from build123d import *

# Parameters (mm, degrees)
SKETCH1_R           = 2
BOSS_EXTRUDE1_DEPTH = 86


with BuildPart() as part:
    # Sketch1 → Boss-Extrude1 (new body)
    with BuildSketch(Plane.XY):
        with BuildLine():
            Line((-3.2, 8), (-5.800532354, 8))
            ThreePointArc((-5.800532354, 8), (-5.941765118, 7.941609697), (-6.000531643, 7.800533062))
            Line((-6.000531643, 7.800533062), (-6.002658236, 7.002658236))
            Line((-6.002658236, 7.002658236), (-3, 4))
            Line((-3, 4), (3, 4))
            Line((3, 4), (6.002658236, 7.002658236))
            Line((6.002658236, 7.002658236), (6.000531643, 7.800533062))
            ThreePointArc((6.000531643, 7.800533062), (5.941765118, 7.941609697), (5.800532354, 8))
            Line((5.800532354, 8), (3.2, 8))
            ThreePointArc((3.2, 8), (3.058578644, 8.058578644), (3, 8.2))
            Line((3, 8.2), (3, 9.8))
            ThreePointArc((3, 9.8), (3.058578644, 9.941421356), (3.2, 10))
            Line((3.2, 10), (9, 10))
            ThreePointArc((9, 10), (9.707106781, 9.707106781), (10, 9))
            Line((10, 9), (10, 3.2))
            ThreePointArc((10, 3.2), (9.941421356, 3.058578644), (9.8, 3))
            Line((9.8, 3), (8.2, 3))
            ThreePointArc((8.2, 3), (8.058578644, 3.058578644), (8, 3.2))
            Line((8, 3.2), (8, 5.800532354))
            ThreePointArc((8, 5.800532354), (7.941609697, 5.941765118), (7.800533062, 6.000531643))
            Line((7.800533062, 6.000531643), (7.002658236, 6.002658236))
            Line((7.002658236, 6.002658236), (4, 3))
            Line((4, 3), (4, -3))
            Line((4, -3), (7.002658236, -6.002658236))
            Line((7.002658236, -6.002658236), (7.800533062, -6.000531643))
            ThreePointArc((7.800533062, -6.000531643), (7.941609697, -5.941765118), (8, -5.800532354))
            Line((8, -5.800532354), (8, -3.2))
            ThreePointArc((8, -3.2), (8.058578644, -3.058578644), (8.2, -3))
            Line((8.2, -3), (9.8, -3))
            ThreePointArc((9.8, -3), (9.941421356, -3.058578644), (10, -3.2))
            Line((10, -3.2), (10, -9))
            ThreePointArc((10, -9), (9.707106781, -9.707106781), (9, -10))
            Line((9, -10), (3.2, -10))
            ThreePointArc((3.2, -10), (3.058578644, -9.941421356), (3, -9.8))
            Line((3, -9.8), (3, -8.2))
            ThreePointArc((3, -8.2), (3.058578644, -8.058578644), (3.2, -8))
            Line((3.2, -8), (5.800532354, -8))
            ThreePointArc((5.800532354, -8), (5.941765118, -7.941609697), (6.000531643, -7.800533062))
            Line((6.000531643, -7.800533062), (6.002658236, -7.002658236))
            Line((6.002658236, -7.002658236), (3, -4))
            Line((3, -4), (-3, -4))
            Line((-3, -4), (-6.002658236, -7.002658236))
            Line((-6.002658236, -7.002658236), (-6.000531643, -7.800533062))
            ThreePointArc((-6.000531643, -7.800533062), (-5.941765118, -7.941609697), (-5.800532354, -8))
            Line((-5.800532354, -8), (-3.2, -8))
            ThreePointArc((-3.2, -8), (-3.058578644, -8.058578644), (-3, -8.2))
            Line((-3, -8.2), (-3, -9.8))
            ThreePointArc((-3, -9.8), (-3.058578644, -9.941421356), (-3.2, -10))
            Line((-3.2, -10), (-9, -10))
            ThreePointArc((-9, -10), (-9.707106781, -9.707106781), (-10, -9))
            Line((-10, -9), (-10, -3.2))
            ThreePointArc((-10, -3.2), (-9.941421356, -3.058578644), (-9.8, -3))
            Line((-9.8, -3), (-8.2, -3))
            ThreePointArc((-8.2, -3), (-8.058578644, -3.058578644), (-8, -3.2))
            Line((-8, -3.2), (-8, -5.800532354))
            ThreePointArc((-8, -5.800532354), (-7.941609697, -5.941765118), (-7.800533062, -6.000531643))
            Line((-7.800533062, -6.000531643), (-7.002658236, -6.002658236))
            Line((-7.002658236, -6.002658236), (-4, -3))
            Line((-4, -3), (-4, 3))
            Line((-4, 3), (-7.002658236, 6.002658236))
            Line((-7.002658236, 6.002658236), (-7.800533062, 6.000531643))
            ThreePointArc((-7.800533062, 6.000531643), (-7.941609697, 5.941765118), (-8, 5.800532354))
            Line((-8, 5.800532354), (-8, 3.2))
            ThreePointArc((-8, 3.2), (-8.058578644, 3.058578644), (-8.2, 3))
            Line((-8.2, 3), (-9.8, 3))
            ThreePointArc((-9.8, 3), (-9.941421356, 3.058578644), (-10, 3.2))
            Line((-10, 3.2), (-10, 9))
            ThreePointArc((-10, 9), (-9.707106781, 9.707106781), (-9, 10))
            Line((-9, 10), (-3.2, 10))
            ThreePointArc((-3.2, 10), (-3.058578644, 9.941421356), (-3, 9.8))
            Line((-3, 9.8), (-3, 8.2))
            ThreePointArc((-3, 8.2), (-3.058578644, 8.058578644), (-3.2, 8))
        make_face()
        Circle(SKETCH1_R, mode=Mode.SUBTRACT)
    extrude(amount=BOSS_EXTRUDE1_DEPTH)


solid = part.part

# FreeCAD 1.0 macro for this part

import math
import FreeCAD as App
import Part
import Sketcher

V = App.Vector
Q = App.Units.Quantity

doc = App.newDocument("Part")
body = doc.addObject("PartDesign::Body", "Body")

sketch1 = body.newObject("Sketcher::SketchObject", "Sketch")
sketch1.AttachmentSupport = (doc.getObject("XY_Plane"), [""])
sketch1.MapMode = "FlatFace"
sketch1.addGeometry(Part.LineSegment(V(-5.8, 8, 0), V(-3.2, 8, 0)), False)
sketch1.addGeometry(Part.ArcOfCircle(Part.Circle(V(-3.2, 8.2, 0), V(0, 0, 1), 0.2), math.radians(-90), math.radians(0)), False)
sketch1.addGeometry(Part.LineSegment(V(-3, 8.2, 0), V(-3, 9.8, 0)), False)
sketch1.addGeometry(Part.ArcOfCircle(Part.Circle(V(-3.2, 9.8, 0), V(0, 0, 1), 0.2), math.radians(0), math.radians(90)), False)
sketch1.addGeometry(Part.LineSegment(V(-3.2, 10, 0), V(-9, 10, 0)), False)
sketch1.addGeometry(Part.ArcOfCircle(Part.Circle(V(-9, 9, 0), V(0, 0, 1), 1), math.radians(90), math.radians(180)), False)
sketch1.addGeometry(Part.LineSegment(V(-10, 9, 0), V(-10, 3.2, 0)), False)
sketch1.addGeometry(Part.ArcOfCircle(Part.Circle(V(-9.8, 3.2, 0), V(0, 0, 1), 0.2), math.radians(-180), math.radians(-90)), False)
sketch1.addGeometry(Part.LineSegment(V(-9.8, 3, 0), V(-8.2, 3, 0)), False)
sketch1.addGeometry(Part.ArcOfCircle(Part.Circle(V(-8.2, 3.2, 0), V(0, 0, 1), 0.2), math.radians(-90), math.radians(0)), False)
sketch1.addGeometry(Part.LineSegment(V(-8, 3.2, 0), V(-8, 5.8, 0)), False)
sketch1.addGeometry(Part.ArcOfCircle(Part.Circle(V(-7.8, 5.8, 0), V(0, 0, 1), 0.2), math.radians(90), math.radians(180)), False)
sketch1.addGeometry(Part.LineSegment(V(-7.8, 6, 0), V(-7, 6, 0)), False)
sketch1.addGeometry(Part.LineSegment(V(-7, 6, 0), V(-4, 3, 0)), False)
sketch1.addGeometry(Part.LineSegment(V(-4, 3, 0), V(-4, -3, 0)), False)
sketch1.addGeometry(Part.LineSegment(V(-4, -3, 0), V(-7, -6, 0)), False)
sketch1.addGeometry(Part.LineSegment(V(-7, -6, 0), V(-7.8, -6, 0)), False)
sketch1.addGeometry(Part.ArcOfCircle(Part.Circle(V(-7.8, -5.8, 0), V(0, 0, 1), 0.2), math.radians(180), math.radians(270)), False)
sketch1.addGeometry(Part.LineSegment(V(-8, -5.8, 0), V(-8, -3.2, 0)), False)
sketch1.addGeometry(Part.ArcOfCircle(Part.Circle(V(-8.2, -3.2, 0), V(0, 0, 1), 0.2), math.radians(0), math.radians(90)), False)
sketch1.addGeometry(Part.LineSegment(V(-8.2, -3, 0), V(-9.8, -3, 0)), False)
sketch1.addGeometry(Part.ArcOfCircle(Part.Circle(V(-9.8, -3.2, 0), V(0, 0, 1), 0.2), math.radians(90), math.radians(180)), False)
sketch1.addGeometry(Part.LineSegment(V(-10, -3.2, 0), V(-10, -9, 0)), False)
sketch1.addGeometry(Part.ArcOfCircle(Part.Circle(V(-9, -9, 0), V(0, 0, 1), 1), math.radians(-180), math.radians(-90)), False)
sketch1.addGeometry(Part.LineSegment(V(-9, -10, 0), V(-3.2, -10, 0)), False)
sketch1.addGeometry(Part.ArcOfCircle(Part.Circle(V(-3.2, -9.8, 0), V(0, 0, 1), 0.2), math.radians(-90), math.radians(0)), False)
sketch1.addGeometry(Part.LineSegment(V(-3, -9.8, 0), V(-3, -8.2, 0)), False)
sketch1.addGeometry(Part.ArcOfCircle(Part.Circle(V(-3.2, -8.2, 0), V(0, 0, 1), 0.2), math.radians(0), math.radians(90)), False)
sketch1.addGeometry(Part.LineSegment(V(-3.2, -8, 0), V(-5.8, -8, 0)), False)
sketch1.addGeometry(Part.ArcOfCircle(Part.Circle(V(-5.8, -7.8, 0), V(0, 0, 1), 0.2), math.radians(-180), math.radians(-90)), False)
sketch1.addGeometry(Part.LineSegment(V(-6, -7.8, 0), V(-6, -7, 0)), False)
sketch1.addGeometry(Part.LineSegment(V(-6, -7, 0), V(-3, -4, 0)), False)
sketch1.addGeometry(Part.LineSegment(V(-3, -4, 0), V(3, -4, 0)), False)
sketch1.addGeometry(Part.LineSegment(V(3, -4, 0), V(6, -7, 0)), False)
sketch1.addGeometry(Part.LineSegment(V(6, -7, 0), V(6, -7.8, 0)), False)
sketch1.addGeometry(Part.ArcOfCircle(Part.Circle(V(5.8, -7.8, 0), V(0, 0, 1), 0.2), math.radians(-90), math.radians(0)), False)
sketch1.addGeometry(Part.LineSegment(V(5.8, -8, 0), V(3.2, -8, 0)), False)
sketch1.addGeometry(Part.ArcOfCircle(Part.Circle(V(3.2, -8.2, 0), V(0, 0, 1), 0.2), math.radians(90), math.radians(180)), False)
sketch1.addGeometry(Part.LineSegment(V(3, -8.2, 0), V(3, -9.8, 0)), False)
sketch1.addGeometry(Part.ArcOfCircle(Part.Circle(V(3.2, -9.8, 0), V(0, 0, 1), 0.2), math.radians(-180), math.radians(-90)), False)
sketch1.addGeometry(Part.LineSegment(V(3.2, -10, 0), V(9, -10, 0)), False)
sketch1.addGeometry(Part.ArcOfCircle(Part.Circle(V(9, -9, 0), V(0, 0, 1), 1), math.radians(-90), math.radians(0)), False)
sketch1.addGeometry(Part.LineSegment(V(10, -9, 0), V(10, -3.2, 0)), False)
sketch1.addGeometry(Part.ArcOfCircle(Part.Circle(V(9.8, -3.2, 0), V(0, 0, 1), 0.2), math.radians(0), math.radians(90)), False)
sketch1.addGeometry(Part.LineSegment(V(9.8, -3, 0), V(8.2, -3, 0)), False)
sketch1.addGeometry(Part.ArcOfCircle(Part.Circle(V(8.2, -3.2, 0), V(0, 0, 1), 0.2), math.radians(90), math.radians(180)), False)
sketch1.addGeometry(Part.LineSegment(V(8, -3.2, 0), V(8, -5.8, 0)), False)
sketch1.addGeometry(Part.ArcOfCircle(Part.Circle(V(7.8, -5.8, 0), V(0, 0, 1), 0.2), math.radians(-90), math.radians(0)), False)
sketch1.addGeometry(Part.LineSegment(V(7.8, -6, 0), V(7, -6, 0)), False)
sketch1.addGeometry(Part.LineSegment(V(7, -6, 0), V(4, -3, 0)), False)
sketch1.addGeometry(Part.LineSegment(V(4, -3, 0), V(4, 3, 0)), False)
sketch1.addGeometry(Part.LineSegment(V(4, 3, 0), V(7, 6, 0)), False)
sketch1.addGeometry(Part.LineSegment(V(7, 6, 0), V(7.8, 6, 0)), False)
sketch1.addGeometry(Part.ArcOfCircle(Part.Circle(V(7.8, 5.8, 0), V(0, 0, 1), 0.2), math.radians(0), math.radians(90)), False)
sketch1.addGeometry(Part.LineSegment(V(8, 5.8, 0), V(8, 3.2, 0)), False)
sketch1.addGeometry(Part.ArcOfCircle(Part.Circle(V(8.2, 3.2, 0), V(0, 0, 1), 0.2), math.radians(-180), math.radians(-90)), False)
sketch1.addGeometry(Part.LineSegment(V(8.2, 3, 0), V(9.8, 3, 0)), False)
sketch1.addGeometry(Part.ArcOfCircle(Part.Circle(V(9.8, 3.2, 0), V(0, 0, 1), 0.2), math.radians(-90), math.radians(0)), False)
sketch1.addGeometry(Part.LineSegment(V(10, 3.2, 0), V(10, 9, 0)), False)
sketch1.addGeometry(Part.ArcOfCircle(Part.Circle(V(9, 9, 0), V(0, 0, 1), 1), math.radians(0), math.radians(90)), False)
sketch1.addGeometry(Part.LineSegment(V(9, 10, 0), V(3.2, 10, 0)), False)
sketch1.addGeometry(Part.ArcOfCircle(Part.Circle(V(3.2, 9.8, 0), V(0, 0, 1), 0.2), math.radians(90), math.radians(180)), False)
sketch1.addGeometry(Part.LineSegment(V(3, 9.8, 0), V(3, 8.2, 0)), False)
sketch1.addGeometry(Part.ArcOfCircle(Part.Circle(V(3.2, 8.2, 0), V(0, 0, 1), 0.2), math.radians(-180), math.radians(-90)), False)
sketch1.addGeometry(Part.LineSegment(V(3.2, 8, 0), V(5.8, 8, 0)), False)
sketch1.addGeometry(Part.ArcOfCircle(Part.Circle(V(5.8, 7.8, 0), V(0, 0, 1), 0.2), math.radians(0), math.radians(90)), False)
sketch1.addGeometry(Part.LineSegment(V(6, 7.8, 0), V(6, 7, 0)), False)
sketch1.addGeometry(Part.LineSegment(V(6, 7, 0), V(3, 4, 0)), False)
sketch1.addGeometry(Part.LineSegment(V(3, 4, 0), V(-3, 4, 0)), False)
sketch1.addGeometry(Part.LineSegment(V(-3, 4, 0), V(-6, 7, 0)), False)
sketch1.addGeometry(Part.LineSegment(V(-6, 7, 0), V(-6, 7.8, 0)), False)
sketch1.addGeometry(Part.ArcOfCircle(Part.Circle(V(-5.8, 7.8, 0), V(0, 0, 1), 0.2), math.radians(90), math.radians(180)), False)
sketch1.addGeometry(Part.Circle(V(0, 0, 0), V(0, 0, 1), 2), False)
sketch1.addConstraint(Sketcher.Constraint("Tangent", 0, 2, 1, 1))
sketch1.addConstraint(Sketcher.Constraint("Tangent", 1, 2, 2, 1))
sketch1.addConstraint(Sketcher.Constraint("Tangent", 2, 2, 3, 1))
sketch1.addConstraint(Sketcher.Constraint("Tangent", 3, 2, 4, 1))
sketch1.addConstraint(Sketcher.Constraint("Tangent", 4, 2, 5, 1))
sketch1.addConstraint(Sketcher.Constraint("Tangent", 5, 2, 6, 1))
sketch1.addConstraint(Sketcher.Constraint("Tangent", 6, 2, 7, 1))
sketch1.addConstraint(Sketcher.Constraint("Tangent", 7, 2, 8, 1))
sketch1.addConstraint(Sketcher.Constraint("Tangent", 8, 2, 9, 1))
sketch1.addConstraint(Sketcher.Constraint("Tangent", 9, 2, 10, 1))
sketch1.addConstraint(Sketcher.Constraint("Tangent", 10, 2, 11, 2))
sketch1.addConstraint(Sketcher.Constraint("Tangent", 11, 1, 12, 1))
sketch1.addConstraint(Sketcher.Constraint("Coincident", 12, 2, 13, 1))
sketch1.addConstraint(Sketcher.Constraint("Coincident", 13, 2, 14, 1))
sketch1.addConstraint(Sketcher.Constraint("Coincident", 14, 2, 15, 1))
sketch1.addConstraint(Sketcher.Constraint("Coincident", 15, 2, 16, 1))
sketch1.addConstraint(Sketcher.Constraint("Tangent", 16, 2, 17, 2))
sketch1.addConstraint(Sketcher.Constraint("Tangent", 17, 1, 18, 1))
sketch1.addConstraint(Sketcher.Constraint("Tangent", 18, 2, 19, 1))
sketch1.addConstraint(Sketcher.Constraint("Tangent", 19, 2, 20, 1))
sketch1.addConstraint(Sketcher.Constraint("Tangent", 20, 2, 21, 1))
sketch1.addConstraint(Sketcher.Constraint("Tangent", 21, 2, 22, 1))
sketch1.addConstraint(Sketcher.Constraint("Tangent", 22, 2, 23, 1))
sketch1.addConstraint(Sketcher.Constraint("Tangent", 23, 2, 24, 1))
sketch1.addConstraint(Sketcher.Constraint("Tangent", 24, 2, 25, 1))
sketch1.addConstraint(Sketcher.Constraint("Tangent", 25, 2, 26, 1))
sketch1.addConstraint(Sketcher.Constraint("Tangent", 26, 2, 27, 1))
sketch1.addConstraint(Sketcher.Constraint("Tangent", 27, 2, 28, 1))
sketch1.addConstraint(Sketcher.Constraint("Tangent", 28, 2, 29, 2))
sketch1.addConstraint(Sketcher.Constraint("Tangent", 29, 1, 30, 1))
sketch1.addConstraint(Sketcher.Constraint("Coincident", 30, 2, 31, 1))
sketch1.addConstraint(Sketcher.Constraint("Coincident", 31, 2, 32, 1))
sketch1.addConstraint(Sketcher.Constraint("Coincident", 32, 2, 33, 1))
sketch1.addConstraint(Sketcher.Constraint("Coincident", 33, 2, 34, 1))
sketch1.addConstraint(Sketcher.Constraint("Tangent", 34, 2, 35, 2))
sketch1.addConstraint(Sketcher.Constraint("Tangent", 35, 1, 36, 1))
sketch1.addConstraint(Sketcher.Constraint("Tangent", 36, 2, 37, 1))
sketch1.addConstraint(Sketcher.Constraint("Tangent", 37, 2, 38, 1))
sketch1.addConstraint(Sketcher.Constraint("Tangent", 38, 2, 39, 1))
sketch1.addConstraint(Sketcher.Constraint("Tangent", 39, 2, 40, 1))
sketch1.addConstraint(Sketcher.Constraint("Tangent", 40, 2, 41, 1))
sketch1.addConstraint(Sketcher.Constraint("Tangent", 41, 2, 42, 1))
sketch1.addConstraint(Sketcher.Constraint("Tangent", 42, 2, 43, 1))
sketch1.addConstraint(Sketcher.Constraint("Tangent", 43, 2, 44, 1))
sketch1.addConstraint(Sketcher.Constraint("Tangent", 44, 2, 45, 1))
sketch1.addConstraint(Sketcher.Constraint("Tangent", 45, 2, 46, 1))
sketch1.addConstraint(Sketcher.Constraint("Tangent", 46, 2, 47, 2))
sketch1.addConstraint(Sketcher.Constraint("Tangent", 47, 1, 48, 1))
sketch1.addConstraint(Sketcher.Constraint("Coincident", 48, 2, 49, 1))
sketch1.addConstraint(Sketcher.Constraint("Coincident", 49, 2, 50, 1))
sketch1.addConstraint(Sketcher.Constraint("Coincident", 50, 2, 51, 1))
sketch1.addConstraint(Sketcher.Constraint("Coincident", 51, 2, 52, 1))
sketch1.addConstraint(Sketcher.Constraint("Tangent", 52, 2, 53, 2))
sketch1.addConstraint(Sketcher.Constraint("Tangent", 53, 1, 54, 1))
sketch1.addConstraint(Sketcher.Constraint("Tangent", 54, 2, 55, 1))
sketch1.addConstraint(Sketcher.Constraint("Tangent", 55, 2, 56, 1))
sketch1.addConstraint(Sketcher.Constraint("Tangent", 56, 2, 57, 1))
sketch1.addConstraint(Sketcher.Constraint("Tangent", 57, 2, 58, 1))
sketch1.addConstraint(Sketcher.Constraint("Tangent", 58, 2, 59, 1))
sketch1.addConstraint(Sketcher.Constraint("Tangent", 59, 2, 60, 1))
sketch1.addConstraint(Sketcher.Constraint("Tangent", 60, 2, 61, 1))
sketch1.addConstraint(Sketcher.Constraint("Tangent", 61, 2, 62, 1))
sketch1.addConstraint(Sketcher.Constraint("Tangent", 62, 2, 63, 1))
sketch1.addConstraint(Sketcher.Constraint("Tangent", 63, 2, 64, 1))
sketch1.addConstraint(Sketcher.Constraint("Tangent", 64, 2, 65, 2))
sketch1.addConstraint(Sketcher.Constraint("Tangent", 65, 1, 66, 1))
sketch1.addConstraint(Sketcher.Constraint("Coincident", 66, 2, 67, 1))
sketch1.addConstraint(Sketcher.Constraint("Coincident", 67, 2, 68, 1))
sketch1.addConstraint(Sketcher.Constraint("Coincident", 68, 2, 69, 1))
sketch1.addConstraint(Sketcher.Constraint("Coincident", 69, 2, 70, 1))
sketch1.addConstraint(Sketcher.Constraint("Tangent", 70, 2, 71, 2))
sketch1.addConstraint(Sketcher.Constraint("Tangent", 71, 1, 0, 1))
sketch1.addConstraint(Sketcher.Constraint("Horizontal", 0))
sketch1.addConstraint(Sketcher.Constraint("Vertical", 2))
sketch1.addConstraint(Sketcher.Constraint("Horizontal", 4))
sketch1.addConstraint(Sketcher.Constraint("Vertical", 6))
sketch1.addConstraint(Sketcher.Constraint("Horizontal", 8))
sketch1.addConstraint(Sketcher.Constraint("Vertical", 10))
sketch1.addConstraint(Sketcher.Constraint("Vertical", 14))
sketch1.addConstraint(Sketcher.Constraint("Vertical", 18))
sketch1.addConstraint(Sketcher.Constraint("Horizontal", 20))
sketch1.addConstraint(Sketcher.Constraint("Vertical", 22))
sketch1.addConstraint(Sketcher.Constraint("Horizontal", 24))
sketch1.addConstraint(Sketcher.Constraint("Vertical", 26))
sketch1.addConstraint(Sketcher.Constraint("Horizontal", 28))
sketch1.addConstraint(Sketcher.Constraint("Horizontal", 32))
sketch1.addConstraint(Sketcher.Constraint("Horizontal", 36))
sketch1.addConstraint(Sketcher.Constraint("Vertical", 38))
sketch1.addConstraint(Sketcher.Constraint("Horizontal", 40))
sketch1.addConstraint(Sketcher.Constraint("Vertical", 42))
sketch1.addConstraint(Sketcher.Constraint("Horizontal", 44))
sketch1.addConstraint(Sketcher.Constraint("Vertical", 46))
sketch1.addConstraint(Sketcher.Constraint("Vertical", 50))
sketch1.addConstraint(Sketcher.Constraint("Vertical", 54))
sketch1.addConstraint(Sketcher.Constraint("Horizontal", 56))
sketch1.addConstraint(Sketcher.Constraint("Vertical", 58))
sketch1.addConstraint(Sketcher.Constraint("Horizontal", 60))
sketch1.addConstraint(Sketcher.Constraint("Vertical", 62))
sketch1.addConstraint(Sketcher.Constraint("Horizontal", 64))
sketch1.addConstraint(Sketcher.Constraint("Horizontal", 68))
sketch1.addConstraint(Sketcher.Constraint("Coincident", 72, 3, -1, 1))
sketch1.addConstraint(Sketcher.Constraint("Equal", 1, 3))
sketch1.addConstraint(Sketcher.Constraint("Equal", 3, 7))
sketch1.addConstraint(Sketcher.Constraint("Equal", 7, 9))
sketch1.addConstraint(Sketcher.Constraint("Equal", 9, 11))
sketch1.addConstraint(Sketcher.Constraint("Equal", 11, 17))
sketch1.addConstraint(Sketcher.Constraint("Equal", 17, 19))
sketch1.addConstraint(Sketcher.Constraint("Equal", 19, 21))
sketch1.addConstraint(Sketcher.Constraint("Equal", 5, 23))
sketch1.addConstraint(Sketcher.Constraint("Equal", 21, 25))
sketch1.addConstraint(Sketcher.Constraint("Equal", 25, 27))
sketch1.addConstraint(Sketcher.Constraint("Equal", 27, 29))
sketch1.addConstraint(Sketcher.Constraint("Equal", 29, 35))
sketch1.addConstraint(Sketcher.Constraint("Equal", 35, 37))
sketch1.addConstraint(Sketcher.Constraint("Equal", 37, 39))
sketch1.addConstraint(Sketcher.Constraint("Equal", 23, 41))
sketch1.addConstraint(Sketcher.Constraint("Equal", 39, 43))
sketch1.addConstraint(Sketcher.Constraint("Equal", 43, 45))
sketch1.addConstraint(Sketcher.Constraint("Equal", 45, 47))
sketch1.addConstraint(Sketcher.Constraint("Equal", 47, 53))
sketch1.addConstraint(Sketcher.Constraint("Equal", 53, 55))
sketch1.addConstraint(Sketcher.Constraint("Equal", 55, 57))
sketch1.addConstraint(Sketcher.Constraint("Equal", 41, 59))
sketch1.addConstraint(Sketcher.Constraint("Equal", 57, 61))
sketch1.addConstraint(Sketcher.Constraint("Equal", 61, 63))
sketch1.addConstraint(Sketcher.Constraint("Equal", 63, 65))
sketch1.addConstraint(Sketcher.Constraint("Equal", 65, 71))
sketch1.addConstraint(Sketcher.Constraint("Symmetric", 1, 3, 37, 3, -1, 1))
sketch1.addConstraint(Sketcher.Constraint("Symmetric", 5, 3, 41, 3, -1, 1))
sketch1.addConstraint(Sketcher.Constraint("Symmetric", 9, 3, 45, 3, -1, 1))
sketch1.addConstraint(Sketcher.Constraint("Symmetric", 17, 3, 53, 3, -1, 1))
sketch1.addConstraint(Sketcher.Constraint("Symmetric", 21, 3, 57, 3, -1, 1))
sketch1.addConstraint(Sketcher.Constraint("Symmetric", 25, 3, 61, 3, -1, 1))
sketch1.addConstraint(Sketcher.Constraint("Symmetric", 29, 3, 65, 3, -1, 1))
sketch1.addConstraint(Sketcher.Constraint("Symmetric", 11, 1, 47, 1, -1, 1))
sketch1.addConstraint(Sketcher.Constraint("Symmetric", 13, 2, 49, 2, -1, 1))
sketch1.addConstraint(Sketcher.Constraint("Symmetric", 15, 2, 51, 2, -1, 1))
sketch1.addConstraint(Sketcher.Constraint("Symmetric", 30, 2, 66, 2, -1, 1))
sketch1.addConstraint(Sketcher.Constraint("Symmetric", 31, 2, 67, 2, -1, 1))
sketch1.addConstraint(Sketcher.Constraint("Symmetric", 33, 2, 69, 2, -1, 1))
sketch1.addConstraint(Sketcher.Constraint("Symmetric", 29, 3, 35, 3, -2))
sketch1.addConstraint(Sketcher.Constraint("Symmetric", 25, 3, 39, 3, -2))
sketch1.addConstraint(Sketcher.Constraint("Symmetric", 21, 3, 43, 3, -2))
sketch1.addConstraint(Sketcher.Constraint("Symmetric", 17, 3, 47, 3, -2))
sketch1.addConstraint(Sketcher.Constraint("Symmetric", 30, 2, 33, 2, -2))
sketch1.addConstraint(Sketcher.Constraint("Symmetric", 15, 2, 48, 2, -2))
sketch1.addConstraint(Sketcher.Constraint("Perpendicular", 13, 15))
sketch1.addConstraint(Sketcher.Constraint("Perpendicular", 12, 30))
sketch1.addConstraint(Sketcher.Constraint("Parallel", 15, 31))
sketch1.addConstraint(Sketcher.Constraint("Perpendicular", 31, 33))
sketch1.addConstraint(Sketcher.Constraint("Parallel", 33, 49))
sketch1.addConstraint(Sketcher.Constraint("Perpendicular", 49, 51))
sketch1.addConstraint(Sketcher.Constraint("Perpendicular", 67, 69))
sketch1.addConstraint(Sketcher.Constraint("Perpendicular", 52, 70))
sketch1.addConstraint(Sketcher.Constraint("Horizontal", 8, 2, 13, 2))
sketch1.addConstraint(Sketcher.Constraint("Horizontal", 14, 2, 19, 2))
sketch1.addConstraint(Sketcher.Constraint("Vertical", 26, 2, 31, 2))
sketch1.addConstraint(Sketcher.Constraint("Equal", 56, 2))
sketch1.addConstraint(Sketcher.Constraint("Equal", 60, 6))
sketch1.addConstraint(Sketcher.Constraint("Equal", 64, 10))
sketch1.addConstraint(Sketcher.Constraint("Equal", 68, 14))
sketch1.addConstraint(Sketcher.Constraint("Equal", 16, 30))
sketch1.addConstraint(Sketcher.Constraint("Diameter", 72, Q("4 mm")))
sketch1.addConstraint(Sketcher.Constraint("Radius", 5, Q("1 mm")))
sketch1.addConstraint(Sketcher.Constraint("Radius", 1, Q("0.2 mm")))
sketch1.addConstraint(Sketcher.Constraint("DistanceX", 32, 1, 32, 2, Q("6 mm")))
sketch1.addConstraint(Sketcher.Constraint("DistanceX", 4, 2, 4, 1, Q("5.8 mm")))
sketch1.addConstraint(Sketcher.Constraint("DistanceX", 8, 1, 8, 2, Q("1.6 mm")))
sketch1.addConstraint(Sketcher.Constraint("DistanceX", 13, 2, -1, 1, Q("4 mm")))
sketch1.addConstraint(Sketcher.Constraint("Distance", 13, Q("4.2464 mm")))
sketch1.addConstraint(Sketcher.Constraint("DistanceX", 0, 1, 0, 2, Q("2.600532 mm")))
pad1 = body.newObject("PartDesign::Pad", "Pad")
pad1.Profile = sketch1
pad1.Length = 86

doc.recompute()
